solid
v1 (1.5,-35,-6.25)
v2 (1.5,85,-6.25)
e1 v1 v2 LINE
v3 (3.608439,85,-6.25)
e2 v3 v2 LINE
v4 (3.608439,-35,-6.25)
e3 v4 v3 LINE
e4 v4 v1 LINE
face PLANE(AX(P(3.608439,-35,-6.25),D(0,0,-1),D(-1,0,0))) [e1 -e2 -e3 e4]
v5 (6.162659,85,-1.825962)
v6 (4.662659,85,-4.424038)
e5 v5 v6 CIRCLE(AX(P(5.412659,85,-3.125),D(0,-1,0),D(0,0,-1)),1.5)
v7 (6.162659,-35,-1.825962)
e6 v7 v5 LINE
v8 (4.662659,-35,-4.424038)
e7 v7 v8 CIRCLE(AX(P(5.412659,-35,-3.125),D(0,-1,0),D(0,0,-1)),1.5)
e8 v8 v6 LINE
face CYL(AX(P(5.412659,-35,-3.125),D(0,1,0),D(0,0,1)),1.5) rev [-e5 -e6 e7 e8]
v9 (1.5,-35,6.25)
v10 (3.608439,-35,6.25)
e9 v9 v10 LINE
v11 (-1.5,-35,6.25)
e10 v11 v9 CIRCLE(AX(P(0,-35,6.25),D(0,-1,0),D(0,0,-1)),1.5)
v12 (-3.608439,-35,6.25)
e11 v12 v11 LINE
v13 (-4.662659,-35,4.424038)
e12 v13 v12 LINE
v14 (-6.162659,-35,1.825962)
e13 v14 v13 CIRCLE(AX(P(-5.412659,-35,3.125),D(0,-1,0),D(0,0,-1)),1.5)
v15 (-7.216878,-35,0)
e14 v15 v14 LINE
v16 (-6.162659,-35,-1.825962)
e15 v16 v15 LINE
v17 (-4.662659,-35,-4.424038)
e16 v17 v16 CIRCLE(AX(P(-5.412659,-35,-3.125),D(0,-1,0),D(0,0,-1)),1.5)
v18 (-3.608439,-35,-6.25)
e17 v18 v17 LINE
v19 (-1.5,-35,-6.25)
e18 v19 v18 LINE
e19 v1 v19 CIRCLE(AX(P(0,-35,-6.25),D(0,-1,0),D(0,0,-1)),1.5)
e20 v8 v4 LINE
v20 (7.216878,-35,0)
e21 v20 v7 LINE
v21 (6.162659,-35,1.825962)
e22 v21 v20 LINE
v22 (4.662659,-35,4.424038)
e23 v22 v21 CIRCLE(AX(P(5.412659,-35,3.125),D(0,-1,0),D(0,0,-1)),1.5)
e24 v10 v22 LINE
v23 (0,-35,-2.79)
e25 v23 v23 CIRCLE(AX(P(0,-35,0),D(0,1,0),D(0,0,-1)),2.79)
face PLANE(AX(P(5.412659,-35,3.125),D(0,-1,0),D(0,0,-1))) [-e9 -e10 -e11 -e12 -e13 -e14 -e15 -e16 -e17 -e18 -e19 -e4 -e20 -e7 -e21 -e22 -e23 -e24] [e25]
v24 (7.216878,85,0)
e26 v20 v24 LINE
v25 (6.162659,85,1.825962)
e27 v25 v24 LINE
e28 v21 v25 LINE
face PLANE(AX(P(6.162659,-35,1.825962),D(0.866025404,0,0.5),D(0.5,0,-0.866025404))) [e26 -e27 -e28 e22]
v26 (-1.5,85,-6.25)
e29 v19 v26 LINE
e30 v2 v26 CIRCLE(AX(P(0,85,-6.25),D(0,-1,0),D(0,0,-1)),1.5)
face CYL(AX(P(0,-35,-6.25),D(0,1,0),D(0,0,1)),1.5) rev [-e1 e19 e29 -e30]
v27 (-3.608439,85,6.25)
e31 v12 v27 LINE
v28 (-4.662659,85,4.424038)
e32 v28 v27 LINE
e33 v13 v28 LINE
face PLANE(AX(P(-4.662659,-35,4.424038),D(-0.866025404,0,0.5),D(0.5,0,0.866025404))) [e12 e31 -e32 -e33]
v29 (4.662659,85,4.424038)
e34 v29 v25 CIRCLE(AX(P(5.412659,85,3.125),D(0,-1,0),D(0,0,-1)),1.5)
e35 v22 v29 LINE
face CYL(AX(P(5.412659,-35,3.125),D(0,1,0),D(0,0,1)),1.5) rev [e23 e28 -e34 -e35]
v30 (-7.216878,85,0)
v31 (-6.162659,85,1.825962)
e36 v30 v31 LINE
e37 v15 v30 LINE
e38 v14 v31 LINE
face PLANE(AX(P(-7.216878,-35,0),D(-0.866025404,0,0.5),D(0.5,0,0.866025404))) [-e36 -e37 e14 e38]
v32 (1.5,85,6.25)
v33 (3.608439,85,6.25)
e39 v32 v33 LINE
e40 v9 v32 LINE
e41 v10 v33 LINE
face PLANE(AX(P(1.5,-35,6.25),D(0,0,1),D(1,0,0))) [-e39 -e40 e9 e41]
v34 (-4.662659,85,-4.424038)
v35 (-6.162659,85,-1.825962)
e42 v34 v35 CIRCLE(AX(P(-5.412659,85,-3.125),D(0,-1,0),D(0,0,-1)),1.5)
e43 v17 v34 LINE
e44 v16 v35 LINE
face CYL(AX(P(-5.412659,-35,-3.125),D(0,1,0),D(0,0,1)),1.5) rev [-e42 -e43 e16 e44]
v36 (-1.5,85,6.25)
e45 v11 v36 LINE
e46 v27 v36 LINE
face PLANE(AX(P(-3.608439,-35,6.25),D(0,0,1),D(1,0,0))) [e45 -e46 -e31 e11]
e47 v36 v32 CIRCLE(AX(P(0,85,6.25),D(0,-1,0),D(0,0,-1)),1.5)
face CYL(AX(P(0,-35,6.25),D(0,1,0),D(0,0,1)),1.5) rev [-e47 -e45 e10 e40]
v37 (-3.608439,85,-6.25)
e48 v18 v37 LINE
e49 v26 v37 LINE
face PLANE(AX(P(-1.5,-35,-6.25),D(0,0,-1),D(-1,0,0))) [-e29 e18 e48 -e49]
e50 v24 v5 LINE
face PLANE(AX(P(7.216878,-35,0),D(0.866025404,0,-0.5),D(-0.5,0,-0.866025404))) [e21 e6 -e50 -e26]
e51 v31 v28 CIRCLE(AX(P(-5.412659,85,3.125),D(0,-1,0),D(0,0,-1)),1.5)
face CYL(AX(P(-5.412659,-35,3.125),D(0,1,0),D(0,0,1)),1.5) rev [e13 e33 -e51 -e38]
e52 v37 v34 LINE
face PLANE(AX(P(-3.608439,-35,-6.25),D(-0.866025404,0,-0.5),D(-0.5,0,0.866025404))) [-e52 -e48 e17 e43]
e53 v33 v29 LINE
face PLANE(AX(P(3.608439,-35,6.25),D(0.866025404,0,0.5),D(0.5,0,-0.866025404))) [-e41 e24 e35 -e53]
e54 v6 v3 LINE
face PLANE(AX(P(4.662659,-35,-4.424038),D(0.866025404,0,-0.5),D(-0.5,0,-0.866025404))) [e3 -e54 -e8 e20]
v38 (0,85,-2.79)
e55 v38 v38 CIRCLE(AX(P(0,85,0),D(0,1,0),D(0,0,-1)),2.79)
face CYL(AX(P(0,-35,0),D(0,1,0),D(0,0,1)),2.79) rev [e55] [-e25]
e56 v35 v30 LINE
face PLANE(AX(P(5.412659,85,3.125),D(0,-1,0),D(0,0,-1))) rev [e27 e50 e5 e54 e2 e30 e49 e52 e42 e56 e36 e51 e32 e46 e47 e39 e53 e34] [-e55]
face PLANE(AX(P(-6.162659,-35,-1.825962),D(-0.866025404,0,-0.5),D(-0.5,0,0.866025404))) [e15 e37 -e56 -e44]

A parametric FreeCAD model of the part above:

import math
import FreeCAD as App
import Part
import Sketcher
from FreeCAD import Vector
Q = App.Units.Quantity

doc = App.newDocument("Part")
body = doc.addObject("PartDesign::Body", "Body")

sketch1 = doc.addObject("Sketcher::SketchObject", "Sketch")
body.addObject(sketch1)
sketch1.AttachmentSupport = (doc.XZ_Plane, [""])
sketch1.MapMode = "FlatFace"
sketch1.AttachmentOffset = App.Placement(Vector(0, 0, -85), App.Rotation())
sketch1.addGeometry([
    Part.LineSegment(Vector(6.162659, 1.825962, 0), Vector(7.216878, 0, 0)),
    Part.LineSegment(Vector(7.216878, 0, 0), Vector(6.162659, -1.825962, 0)),
    Part.ArcOfCircle(Part.Circle(Vector(5.412659, -3.125, 0), Vector(0, 0, 1), 1.5), math.radians(60), math.radians(240)),
    Part.LineSegment(Vector(4.662659, -4.424038, 0), Vector(3.608439, -6.25, 0)),
    Part.LineSegment(Vector(3.608439, -6.25, 0), Vector(1.5, -6.25, 0)),
    Part.ArcOfCircle(Part.Circle(Vector(0, -6.25, 0), Vector(0, 0, 1), 1.5), math.radians(0), math.radians(180)),
    Part.LineSegment(Vector(-1.5, -6.25, 0), Vector(-3.608439, -6.25, 0)),
    Part.LineSegment(Vector(-3.608439, -6.25, 0), Vector(-4.662659, -4.424038, 0)),
    Part.ArcOfCircle(Part.Circle(Vector(-5.412659, -3.125, 0), Vector(0, 0, 1), 1.5), math.radians(-60), math.radians(120)),
    Part.LineSegment(Vector(-6.162659, -1.825962, 0), Vector(-7.216878, 0, 0)),
    Part.LineSegment(Vector(-7.216878, 0, 0), Vector(-6.162659, 1.825962, 0)),
    Part.ArcOfCircle(Part.Circle(Vector(-5.412659, 3.125, 0), Vector(0, 0, 1), 1.5), math.radians(-120), math.radians(60)),
    Part.LineSegment(Vector(-4.662659, 4.424038, 0), Vector(-3.608439, 6.25, 0)),
    Part.LineSegment(Vector(-3.608439, 6.25, 0), Vector(-1.5, 6.25, 0)),
    Part.ArcOfCircle(Part.Circle(Vector(0, 6.25, 0), Vector(0, 0, 1), 1.5), math.radians(180), math.radians(360)),
    Part.LineSegment(Vector(1.5, 6.25, 0), Vector(3.608439, 6.25, 0)),
    Part.LineSegment(Vector(3.608439, 6.25, 0), Vector(4.662659, 4.424038, 0)),
    Part.ArcOfCircle(Part.Circle(Vector(5.412659, 3.125, 0), Vector(0, 0, 1), 1.5), math.radians(120), math.radians(300)),
    Part.Circle(Vector(0, 0, 0), Vector(0, 0, 1), 2.79),
], False)
sketch1.addConstraint([
    Sketcher.Constraint("Coincident", 0, 2, 1, 1),
    Sketcher.Constraint("Coincident", 1, 2, 2, 1),
    Sketcher.Constraint("Coincident", 2, 2, 3, 1),
    Sketcher.Constraint("Coincident", 3, 2, 4, 1),
    Sketcher.Constraint("Coincident", 4, 2, 5, 1),
    Sketcher.Constraint("Coincident", 5, 2, 6, 1),
    Sketcher.Constraint("Coincident", 6, 2, 7, 1),
    Sketcher.Constraint("Coincident", 7, 2, 8, 1),
    Sketcher.Constraint("Coincident", 8, 2, 9, 1),
    Sketcher.Constraint("Coincident", 9, 2, 10, 1),
    Sketcher.Constraint("Coincident", 10, 2, 11, 1),
    Sketcher.Constraint("Coincident", 11, 2, 12, 1),
    Sketcher.Constraint("Coincident", 12, 2, 13, 1),
    Sketcher.Constraint("Coincident", 13, 2, 14, 1),
    Sketcher.Constraint("Coincident", 14, 2, 15, 1),
    Sketcher.Constraint("Coincident", 15, 2, 16, 1),
    Sketcher.Constraint("Coincident", 16, 2, 17, 1),
    Sketcher.Constraint("Coincident", 17, 2, 0, 1),
    Sketcher.Constraint("Horizontal", 4),
    Sketcher.Constraint("Horizontal", 6),
    Sketcher.Constraint("Horizontal", 13),
    Sketcher.Constraint("Horizontal", 15),
    Sketcher.Constraint("Coincident", 18, 3, -1, 1),
    Sketcher.Constraint("Equal", 2, 5),
    Sketcher.Constraint("Equal", 5, 8),
    Sketcher.Constraint("Equal", 8, 11),
    Sketcher.Constraint("Equal", 11, 14),
    Sketcher.Constraint("Equal", 14, 17),
    Sketcher.Constraint("Symmetric", 2, 3, 11, 3, -1, 1),
    Sketcher.Constraint("Symmetric", 5, 3, 14, 3, -1, 1),
    Sketcher.Constraint("Symmetric", 8, 3, 17, 3, -1, 1),
    Sketcher.Constraint("Symmetric", 0, 2, 9, 2, -1, 1),
    Sketcher.Constraint("Symmetric", 3, 2, 12, 2, -1, 1),
    Sketcher.Constraint("Symmetric", 6, 2, 15, 2, -1, 1),
    Sketcher.Constraint("Symmetric", 2, 3, 8, 3, -2),
    Sketcher.Constraint("Symmetric", 4, 2, 5, 2, -2),
    Sketcher.Constraint("PointOnObject", 0, 2, -1),
    Sketcher.Constraint("Parallel", 1, 3),
    Sketcher.Constraint("Parallel", 0, 7),
    Sketcher.Constraint("Parallel", 7, 9),
    Sketcher.Constraint("Parallel", 3, 10),
    Sketcher.Constraint("Parallel", 10, 12),
    Sketcher.Constraint("Parallel", 9, 16),
    Sketcher.Constraint("Horizontal", 5, 3, 3, 2),
    Sketcher.Constraint("Horizontal", 2, 2, 7, 2),
    Sketcher.Constraint("Horizontal", 1, 2, 8, 2),
    Sketcher.Constraint("Equal", 1, 3),
    Sketcher.Constraint("Radius", 2, Q("1.5 mm")),
    Sketcher.Constraint("Diameter", 18, Q("5.58 mm")),
    Sketcher.Constraint("Angle", 0, Q("-60 deg")),
    Sketcher.Constraint("DistanceY", 5, 3, 14, 3, Q("12.5 mm")),
    Sketcher.Constraint("DistanceX", 2, 2, 1, 2, Q("1.5 mm")),
    Sketcher.Constraint("DistanceY", 8, 3, 11, 3, Q("6.25 mm")),
    Sketcher.Constraint("DistanceX", 4, 2, 4, 1, Q("2.108439 mm")),
])
pad1 = doc.addObject("PartDesign::Pad", "Pad")
body.addObject(pad1)
pad1.Profile = sketch1
pad1.Length = 120

doc.recompute()
